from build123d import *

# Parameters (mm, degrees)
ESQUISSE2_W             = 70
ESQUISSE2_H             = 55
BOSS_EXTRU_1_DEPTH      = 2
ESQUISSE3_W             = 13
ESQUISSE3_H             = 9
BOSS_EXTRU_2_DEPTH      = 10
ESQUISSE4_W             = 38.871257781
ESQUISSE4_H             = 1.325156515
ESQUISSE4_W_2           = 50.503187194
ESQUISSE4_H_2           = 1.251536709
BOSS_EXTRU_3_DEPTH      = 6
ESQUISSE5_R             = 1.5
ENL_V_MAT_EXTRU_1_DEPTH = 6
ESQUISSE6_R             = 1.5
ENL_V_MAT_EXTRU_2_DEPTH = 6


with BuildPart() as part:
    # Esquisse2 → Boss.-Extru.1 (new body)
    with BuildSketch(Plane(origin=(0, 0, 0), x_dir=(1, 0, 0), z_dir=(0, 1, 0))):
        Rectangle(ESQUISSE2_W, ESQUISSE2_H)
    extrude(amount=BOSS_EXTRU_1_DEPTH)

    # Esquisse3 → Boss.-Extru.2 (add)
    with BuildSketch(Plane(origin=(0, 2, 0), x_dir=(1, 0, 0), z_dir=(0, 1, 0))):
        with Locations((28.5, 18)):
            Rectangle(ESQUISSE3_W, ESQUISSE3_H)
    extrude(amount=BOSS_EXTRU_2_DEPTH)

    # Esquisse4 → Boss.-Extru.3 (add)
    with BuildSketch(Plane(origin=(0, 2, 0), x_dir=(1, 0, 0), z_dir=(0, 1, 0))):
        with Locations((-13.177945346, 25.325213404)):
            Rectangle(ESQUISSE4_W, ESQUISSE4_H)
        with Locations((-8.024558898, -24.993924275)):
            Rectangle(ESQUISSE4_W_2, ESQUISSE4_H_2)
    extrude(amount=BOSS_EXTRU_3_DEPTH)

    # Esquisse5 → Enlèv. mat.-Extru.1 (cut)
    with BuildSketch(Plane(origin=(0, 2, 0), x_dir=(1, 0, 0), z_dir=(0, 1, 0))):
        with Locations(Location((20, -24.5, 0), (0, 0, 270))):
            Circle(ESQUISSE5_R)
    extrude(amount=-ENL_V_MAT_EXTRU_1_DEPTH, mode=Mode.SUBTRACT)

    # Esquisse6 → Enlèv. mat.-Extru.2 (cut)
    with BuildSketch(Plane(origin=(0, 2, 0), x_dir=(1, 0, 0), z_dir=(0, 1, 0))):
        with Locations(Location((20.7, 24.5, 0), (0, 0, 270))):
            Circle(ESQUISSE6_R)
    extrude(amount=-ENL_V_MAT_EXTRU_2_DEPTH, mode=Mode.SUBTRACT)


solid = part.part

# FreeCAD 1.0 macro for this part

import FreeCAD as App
import Part
import Sketcher
from FreeCAD import Vector
Q = App.Units.Quantity


def add_polygon(sketch, points):
    """Adds a closed chain of lines whose ends are joined by coincident constraints."""
    first, n = sketch.GeometryCount, len(points)
    for a, b in zip(points, points[1:] + points[:1]):
        sketch.addGeometry(Part.LineSegment(App.Vector(*a, 0), App.Vector(*b, 0)), False)
    for i in range(n):
        sketch.addConstraint(Sketcher.Constraint("Coincident", first + i, 2, first + (i + 1) % n, 1))

doc = App.newDocument("Part")
body = doc.addObject("PartDesign::Body", "Body")

sketch1 = doc.addObject("Sketcher::SketchObject", "Sketch")
body.addObject(sketch1)
sketch1.AttachmentSupport = (doc.XZ_Plane, [""])
sketch1.MapMode = "FlatFace"
add_polygon(sketch1, [(-35, -28), (-35, 28), (35, 28), (35, -28)])
sketch1.addConstraint([
    Sketcher.Constraint("Vertical", 0),
    Sketcher.Constraint("Horizontal", 1),
    Sketcher.Constraint("Vertical", 2),
    Sketcher.Constraint("Horizontal", 3),
    Sketcher.Constraint("Symmetric", 0, 2, 2, 2, -1, 1),
    Sketcher.Constraint("DistanceX", 1, 1, 1, 2, Q("70 mm")),
    Sketcher.Constraint("DistanceY", 0, 1, 0, 2, Q("55 mm")),
])
pad1 = doc.addObject("PartDesign::Pad", "Pad")
body.addObject(pad1)
pad1.Profile = sketch1
pad1.Length = 2
pad1.Reversed = True

sketch2 = doc.addObject("Sketcher::SketchObject", "Sketch001")
body.addObject(sketch2)
sketch2.AttachmentSupport = (doc.XZ_Plane, [""])
sketch2.MapMode = "FlatFace"
sketch2.AttachmentOffset = App.Placement(Vector(0, 0, -2), App.Rotation())
add_polygon(sketch2, [(22, -22), (22, -14), (35, -14), (35, -22)])
sketch2.addConstraint([
    Sketcher.Constraint("Vertical", 0),
    Sketcher.Constraint("Horizontal", 1),
    Sketcher.Constraint("Vertical", 2),
    Sketcher.Constraint("Horizontal", 3),
    Sketcher.Constraint("DistanceX", 1, 1, 1, 2, Q("13 mm")),
    Sketcher.Constraint("DistanceY", 0, 1, 0, 2, Q("9 mm")),
    Sketcher.Constraint("DistanceX", -1, 1, 0, 2, Q("22 mm")),
    Sketcher.Constraint("DistanceY", 0, 2, -1, 1, Q("13.5 mm")),
])
pad2 = doc.addObject("PartDesign::Pad", "Pad001")
body.addObject(pad2)
pad2.Profile = sketch2
pad2.Length = 10
pad2.Reversed = True

sketch3 = doc.addObject("Sketcher::SketchObject", "Sketch002")
body.addObject(sketch3)
sketch3.AttachmentSupport = (doc.XZ_Plane, [""])
sketch3.MapMode = "FlatFace"
sketch3.AttachmentOffset = App.Placement(Vector(0, 0, -2), App.Rotation())
add_polygon(sketch3, [(-32.6, -26), (-32.6, -24.7), (6.3, -24.7), (6.3, -26)])
add_polygon(sketch3, [(-33.3, 24.4), (-33.3, 25.6), (17.2, 25.6), (17.2, 24.4)])
sketch3.addConstraint([
    Sketcher.Constraint("Vertical", 0),
    Sketcher.Constraint("Horizontal", 1),
    Sketcher.Constraint("Vertical", 2),
    Sketcher.Constraint("Horizontal", 3),
    Sketcher.Constraint("Vertical", 4),
    Sketcher.Constraint("Horizontal", 5),
    Sketcher.Constraint("Vertical", 6),
    Sketcher.Constraint("Horizontal", 7),
    Sketcher.Constraint("DistanceX", 1, 1, 1, 2, Q("38.871258 mm")),
    Sketcher.Constraint("DistanceX", 5, 1, 5, 2, Q("50.503187 mm")),
    Sketcher.Constraint("DistanceY", 0, 1, 0, 2, Q("1.325157 mm")),
    Sketcher.Constraint("DistanceY", 4, 1, 4, 2, Q("1.251537 mm")),
    Sketcher.Constraint("DistanceY", 2, 2, -1, 1, Q("25.987792 mm")),
    Sketcher.Constraint("DistanceX", 4, 2, 0, 2, Q("0.662578 mm")),
    Sketcher.Constraint("DistanceY", 1, 2, 6, 2, Q("49.030791 mm")),
    Sketcher.Constraint("DistanceX", 0, 2, -1, 1, Q("32.613574 mm")),
])
pad3 = doc.addObject("PartDesign::Pad", "Pad002")
body.addObject(pad3)
pad3.Profile = sketch3
pad3.Length = 6
pad3.Reversed = True

sketch4 = doc.addObject("Sketcher::SketchObject", "Sketch003")
body.addObject(sketch4)
sketch4.AttachmentSupport = (doc.XZ_Plane, [""])
sketch4.MapMode = "FlatFace"
sketch4.AttachmentOffset = App.Placement(Vector(0, 0, -2), App.Rotation())
sketch4.addGeometry(Part.Circle(Vector(20, 24.5, 0), Vector(0, 0, 1), 1.5), False)
sketch4.addConstraint([
    Sketcher.Constraint("Diameter", 0, Q("3 mm")),
    Sketcher.Constraint("DistanceX", -1, 1, 0, 3, Q("20 mm")),
    Sketcher.Constraint("DistanceY", -1, 1, 0, 3, Q("24.5 mm")),
])
pocket1 = doc.addObject("PartDesign::Pocket", "Pocket")
body.addObject(pocket1)
pocket1.Profile = sketch4
pocket1.Length = 6
pocket1.Reversed = True

sketch5 = doc.addObject("Sketcher::SketchObject", "Sketch004")
body.addObject(sketch5)
sketch5.AttachmentSupport = (doc.XZ_Plane, [""])
sketch5.MapMode = "FlatFace"
sketch5.AttachmentOffset = App.Placement(Vector(0, 0, -2), App.Rotation())
sketch5.addGeometry(Part.Circle(Vector(20.7, -24.5, 0), Vector(0, 0, 1), 1.5), False)
sketch5.addConstraint([
    Sketcher.Constraint("Diameter", 0, Q("3 mm")),
    Sketcher.Constraint("DistanceX", -1, 1, 0, 3, Q("20.7 mm")),
    Sketcher.Constraint("DistanceY", 0, 3, -1, 1, Q("24.5 mm")),
])
pocket2 = doc.addObject("PartDesign::Pocket", "Pocket001")
body.addObject(pocket2)
pocket2.Profile = sketch5
pocket2.Length = 6
pocket2.Reversed = True

doc.recompute()
